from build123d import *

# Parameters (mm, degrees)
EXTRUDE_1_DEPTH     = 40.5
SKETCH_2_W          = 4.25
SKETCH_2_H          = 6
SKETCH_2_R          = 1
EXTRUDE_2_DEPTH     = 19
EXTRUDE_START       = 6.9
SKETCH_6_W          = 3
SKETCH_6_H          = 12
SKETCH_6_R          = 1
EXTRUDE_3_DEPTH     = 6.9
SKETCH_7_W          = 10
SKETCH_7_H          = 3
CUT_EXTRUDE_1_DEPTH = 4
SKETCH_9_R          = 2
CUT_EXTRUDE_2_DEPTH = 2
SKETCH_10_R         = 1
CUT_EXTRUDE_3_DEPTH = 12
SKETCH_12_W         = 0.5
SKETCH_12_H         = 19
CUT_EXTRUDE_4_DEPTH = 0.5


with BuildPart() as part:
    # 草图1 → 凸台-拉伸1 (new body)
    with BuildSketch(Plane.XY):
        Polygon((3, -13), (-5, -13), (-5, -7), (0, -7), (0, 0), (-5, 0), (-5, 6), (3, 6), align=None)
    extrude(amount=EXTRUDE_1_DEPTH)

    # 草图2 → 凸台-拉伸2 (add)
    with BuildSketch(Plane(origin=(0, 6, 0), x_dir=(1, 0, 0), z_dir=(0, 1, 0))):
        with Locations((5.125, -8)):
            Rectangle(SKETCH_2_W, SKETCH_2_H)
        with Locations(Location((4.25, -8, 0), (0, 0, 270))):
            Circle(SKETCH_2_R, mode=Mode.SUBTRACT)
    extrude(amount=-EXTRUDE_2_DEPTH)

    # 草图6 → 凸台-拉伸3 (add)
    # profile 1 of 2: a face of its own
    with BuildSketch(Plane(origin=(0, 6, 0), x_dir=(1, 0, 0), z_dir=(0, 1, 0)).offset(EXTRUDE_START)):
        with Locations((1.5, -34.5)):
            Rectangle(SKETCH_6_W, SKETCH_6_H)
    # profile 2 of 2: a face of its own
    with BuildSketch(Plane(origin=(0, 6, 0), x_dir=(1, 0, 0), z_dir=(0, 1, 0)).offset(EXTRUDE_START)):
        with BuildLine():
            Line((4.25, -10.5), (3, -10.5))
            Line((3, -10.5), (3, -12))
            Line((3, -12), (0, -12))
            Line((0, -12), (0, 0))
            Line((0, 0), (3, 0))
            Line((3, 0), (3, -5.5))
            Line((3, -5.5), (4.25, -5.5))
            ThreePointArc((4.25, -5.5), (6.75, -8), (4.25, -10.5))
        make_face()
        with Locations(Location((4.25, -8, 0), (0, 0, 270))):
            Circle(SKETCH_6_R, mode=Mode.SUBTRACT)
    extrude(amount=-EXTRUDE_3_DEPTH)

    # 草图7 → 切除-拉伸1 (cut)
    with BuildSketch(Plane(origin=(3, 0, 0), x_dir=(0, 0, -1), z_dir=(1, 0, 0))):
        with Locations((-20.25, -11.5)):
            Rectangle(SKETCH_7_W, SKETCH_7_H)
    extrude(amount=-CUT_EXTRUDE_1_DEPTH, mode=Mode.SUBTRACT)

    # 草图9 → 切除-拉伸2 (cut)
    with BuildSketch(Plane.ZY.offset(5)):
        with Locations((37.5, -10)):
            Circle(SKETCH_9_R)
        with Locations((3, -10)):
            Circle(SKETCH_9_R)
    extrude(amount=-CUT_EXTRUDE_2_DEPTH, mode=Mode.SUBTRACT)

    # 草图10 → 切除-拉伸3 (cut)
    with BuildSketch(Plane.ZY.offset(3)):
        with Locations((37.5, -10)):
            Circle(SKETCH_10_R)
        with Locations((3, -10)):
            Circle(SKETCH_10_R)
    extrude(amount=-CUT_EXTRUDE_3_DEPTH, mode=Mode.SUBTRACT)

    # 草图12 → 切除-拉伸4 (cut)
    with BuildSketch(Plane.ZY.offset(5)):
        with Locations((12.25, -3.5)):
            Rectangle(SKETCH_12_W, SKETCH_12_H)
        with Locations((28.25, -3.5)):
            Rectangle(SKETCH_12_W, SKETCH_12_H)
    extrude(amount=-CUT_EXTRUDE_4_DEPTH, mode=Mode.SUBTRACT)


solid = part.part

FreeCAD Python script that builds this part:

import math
import FreeCAD as App
import Part
import Sketcher

V = App.Vector
Q = App.Units.Quantity

doc = App.newDocument("Part")
params = doc.addObject("Spreadsheet::Sheet", "Params")
for row, (alias, value) in enumerate([
    ("sketch1_width", "8 mm"),
    ("sketch1_width2", "5 mm"),
    ("sketch1_height", "19 mm"),
    ("sketch1_height2", "6 mm"),
    ("pad1_length", "40.5 mm"),
    ("sketch2_diameter", "2 mm"),
    ("sketch2_height", "6 mm"),
    ("sketch2_width", "4.25 mm"),
    ("pad2_length", "19 mm"),
    ("sketch3_diameter", "2 mm"),
    ("sketch3_radius", "2.5 mm"),
    ("sketch3_width", "3 mm"),
    ("sketch3_height", "12 mm"),
    ("sketch3_height2", "5.5 mm"),
    ("pad3_length", "6.9 mm"),
    ("sketch4_width", "3 mm"),
    ("sketch4_height", "10 mm"),
    ("pocket1_length", "4 mm"),
    ("sketch5_diameter", "4 mm"),
    ("pocket2_length", "2 mm"),
    ("sketch6_diameter", "2 mm"),
    ("pocket3_length", "12 mm"),
    ("sketch7_width", "19 mm"),
    ("sketch7_height", "0.5 mm"),
    ("pocket4_length", "0.5 mm"),
], start=1):
    params.set(f"A{row}", alias)
    params.set(f"B{row}", "=" + value)
    params.setAlias(f"B{row}", alias)

body = doc.addObject("PartDesign::Body", "Body")

# Sketch on XY plane
sketch1 = body.newObject("Sketcher::SketchObject", "Sketch")
sketch1.AttachmentSupport = (doc.getObject("XY_Plane"), [""])
sketch1.MapMode = "FlatFace"
sketch1.addGeometry(Part.LineSegment(V(-5, -13, 0), V(3, -13, 0)), False)
sketch1.addGeometry(Part.LineSegment(V(3, -13, 0), V(3, 6, 0)), False)
sketch1.addGeometry(Part.LineSegment(V(3, 6, 0), V(-5, 6, 0)), False)
sketch1.addGeometry(Part.LineSegment(V(-5, 6, 0), V(-5, 0, 0)), False)
sketch1.addGeometry(Part.LineSegment(V(-5, 0, 0), V(0, 0, 0)), False)
sketch1.addGeometry(Part.LineSegment(V(0, 0, 0), V(0, -7, 0)), False)
sketch1.addGeometry(Part.LineSegment(V(0, -7, 0), V(-5, -7, 0)), False)
sketch1.addGeometry(Part.LineSegment(V(-5, -7, 0), V(-5, -13, 0)), False)
sketch1.addConstraint(Sketcher.Constraint("Coincident", 0, 2, 1, 1))
sketch1.addConstraint(Sketcher.Constraint("Coincident", 1, 2, 2, 1))
sketch1.addConstraint(Sketcher.Constraint("Coincident", 2, 2, 3, 1))
sketch1.addConstraint(Sketcher.Constraint("Coincident", 3, 2, 4, 1))
sketch1.addConstraint(Sketcher.Constraint("Coincident", 4, 2, 5, 1))
sketch1.addConstraint(Sketcher.Constraint("Coincident", 5, 2, 6, 1))
sketch1.addConstraint(Sketcher.Constraint("Coincident", 6, 2, 7, 1))
sketch1.addConstraint(Sketcher.Constraint("Coincident", 7, 2, 0, 1))
sketch1.addConstraint(Sketcher.Constraint("Horizontal", 0))
sketch1.addConstraint(Sketcher.Constraint("Vertical", 1))
sketch1.addConstraint(Sketcher.Constraint("Horizontal", 2))
sketch1.addConstraint(Sketcher.Constraint("Vertical", 3))
sketch1.addConstraint(Sketcher.Constraint("Horizontal", 4))
sketch1.addConstraint(Sketcher.Constraint("Vertical", 5))
sketch1.addConstraint(Sketcher.Constraint("Horizontal", 6))
sketch1.addConstraint(Sketcher.Constraint("Vertical", 7))
sketch1.addConstraint(Sketcher.Constraint("Coincident", 4, 2, -1, 1))
sketch1.addConstraint(Sketcher.Constraint("Vertical", 3, 2, 6, 2))
sketch1.addConstraint(Sketcher.Constraint("Equal", 3, 7))
sketch1.addConstraint(Sketcher.Constraint("DistanceX", 0, 1, 0, 2, Q("8 mm")))
sketch1.addConstraint(Sketcher.Constraint("DistanceX", 4, 1, 4, 2, Q("5 mm")))
sketch1.addConstraint(Sketcher.Constraint("DistanceY", 1, 1, 1, 2, Q("19 mm")))
sketch1.addConstraint(Sketcher.Constraint("DistanceY", 3, 2, 3, 1, Q("6 mm")))
sketch1.setExpression("Constraints[19]", "Params.sketch1_width")
sketch1.setExpression("Constraints[20]", "Params.sketch1_width2")
sketch1.setExpression("Constraints[21]", "Params.sketch1_height")
sketch1.setExpression("Constraints[22]", "Params.sketch1_height2")
pad1 = body.newObject("PartDesign::Pad", "Pad")
pad1.Profile = sketch1
pad1.setExpression("Length", "Params.pad1_length")

# Sketch on XZ plane
sketch2 = body.newObject("Sketcher::SketchObject", "Sketch001")
sketch2.AttachmentSupport = (doc.getObject("XZ_Plane"), [""])
sketch2.MapMode = "FlatFace"
sketch2.AttachmentOffset = App.Placement(V(0, 0, -6), App.Rotation())
sketch2.addGeometry(Part.LineSegment(V(3, 5, 0), V(3, 11, 0)), False)
sketch2.addGeometry(Part.LineSegment(V(3, 11, 0), V(7.2, 11, 0)), False)
sketch2.addGeometry(Part.LineSegment(V(7.2, 11, 0), V(7.2, 5, 0)), False)
sketch2.addGeometry(Part.LineSegment(V(7.2, 5, 0), V(3, 5, 0)), False)
sketch2.addGeometry(Part.Circle(V(4.2, 8, 0), V(0, 0, 1), 1), False)
sketch2.addConstraint(Sketcher.Constraint("Coincident", 0, 2, 1, 1))
sketch2.addConstraint(Sketcher.Constraint("Coincident", 1, 2, 2, 1))
sketch2.addConstraint(Sketcher.Constraint("Coincident", 2, 2, 3, 1))
sketch2.addConstraint(Sketcher.Constraint("Coincident", 3, 2, 0, 1))
sketch2.addConstraint(Sketcher.Constraint("Vertical", 0))
sketch2.addConstraint(Sketcher.Constraint("Horizontal", 1))
sketch2.addConstraint(Sketcher.Constraint("Vertical", 2))
sketch2.addConstraint(Sketcher.Constraint("Horizontal", 3))
sketch2.addConstraint(Sketcher.Constraint("Diameter", 4, Q("2 mm")))
sketch2.addConstraint(Sketcher.Constraint("DistanceY", 0, 1, 0, 2, Q("6 mm")))
sketch2.addConstraint(Sketcher.Constraint("DistanceY", -1, 1, 4, 3, Q("8 mm")))
sketch2.addConstraint(Sketcher.Constraint("DistanceX", -1, 1, 0, 2, Q("3 mm")))
sketch2.addConstraint(Sketcher.Constraint("DistanceY", -1, 1, 0, 2, Q("11 mm")))
sketch2.addConstraint(Sketcher.Constraint("DistanceX", 4, 3, 1, 2, Q("3 mm")))
sketch2.addConstraint(Sketcher.Constraint("DistanceX", 1, 1, 1, 2, Q("4.25 mm")))
sketch2.setExpression("Constraints[8]", "Params.sketch2_diameter")
sketch2.setExpression("Constraints[9]", "Params.sketch2_height")
sketch2.setExpression("Constraints[14]", "Params.sketch2_width")
pad2 = body.newObject("PartDesign::Pad", "Pad001")
pad2.Profile = sketch2
pad2.setExpression("Length", "Params.pad2_length")

# Sketch on XZ plane
sketch3 = body.newObject("Sketcher::SketchObject", "Sketch002")
sketch3.AttachmentSupport = (doc.getObject("XZ_Plane"), [""])
sketch3.MapMode = "FlatFace"
sketch3.AttachmentOffset = App.Placement(V(0, 0, -12.9), App.Rotation())
sketch3.addGeometry(Part.LineSegment(V(0, 28.5, 0), V(0, 40.5, 0)), False)
sketch3.addGeometry(Part.LineSegment(V(0, 40.5, 0), V(3, 40.5, 0)), False)
sketch3.addGeometry(Part.LineSegment(V(3, 40.5, 0), V(3, 28.5, 0)), False)
sketch3.addGeometry(Part.LineSegment(V(3, 28.5, 0), V(0, 28.5, 0)), False)
sketch3.addGeometry(Part.LineSegment(V(3, 10.5, 0), V(4.2, 10.5, 0)), False)
sketch3.addGeometry(Part.ArcOfCircle(Part.Circle(V(4.2, 8, 0), V(0, 0, 1), 2.5), math.radians(-90), math.radians(90)), False)
sketch3.addGeometry(Part.LineSegment(V(4.2, 5.5, 0), V(3, 5.5, 0)), False)
sketch3.addGeometry(Part.LineSegment(V(3, 5.5, 0), V(3, 0, 0)), False)
sketch3.addGeometry(Part.LineSegment(V(3, 0, 0), V(0, 0, 0)), False)
sketch3.addGeometry(Part.LineSegment(V(0, 0, 0), V(0, 12, 0)), False)
sketch3.addGeometry(Part.LineSegment(V(0, 12, 0), V(3, 12, 0)), False)
sketch3.addGeometry(Part.LineSegment(V(3, 12, 0), V(3, 10.5, 0)), False)
sketch3.addGeometry(Part.Circle(V(4.2, 8, 0), V(0, 0, 1), 1), False)
sketch3.addConstraint(Sketcher.Constraint("Coincident", 0, 2, 1, 1))
sketch3.addConstraint(Sketcher.Constraint("Coincident", 1, 2, 2, 1))
sketch3.addConstraint(Sketcher.Constraint("Coincident", 2, 2, 3, 1))
sketch3.addConstraint(Sketcher.Constraint("Coincident", 3, 2, 0, 1))
sketch3.addConstraint(Sketcher.Constraint("Tangent", 4, 2, 5, 2))
sketch3.addConstraint(Sketcher.Constraint("Tangent", 5, 1, 6, 1))
sketch3.addConstraint(Sketcher.Constraint("Coincident", 6, 2, 7, 1))
sketch3.addConstraint(Sketcher.Constraint("Coincident", 7, 2, 8, 1))
sketch3.addConstraint(Sketcher.Constraint("Coincident", 8, 2, 9, 1))
sketch3.addConstraint(Sketcher.Constraint("Coincident", 9, 2, 10, 1))
sketch3.addConstraint(Sketcher.Constraint("Coincident", 10, 2, 11, 1))
sketch3.addConstraint(Sketcher.Constraint("Coincident", 11, 2, 4, 1))
sketch3.addConstraint(Sketcher.Constraint("Vertical", 0))
sketch3.addConstraint(Sketcher.Constraint("Horizontal", 1))
sketch3.addConstraint(Sketcher.Constraint("Vertical", 2))
sketch3.addConstraint(Sketcher.Constraint("Horizontal", 3))
sketch3.addConstraint(Sketcher.Constraint("Horizontal", 4))
sketch3.addConstraint(Sketcher.Constraint("Horizontal", 6))
sketch3.addConstraint(Sketcher.Constraint("Vertical", 7))
sketch3.addConstraint(Sketcher.Constraint("Horizontal", 8))
sketch3.addConstraint(Sketcher.Constraint("Vertical", 9))
sketch3.addConstraint(Sketcher.Constraint("Horizontal", 10))
sketch3.addConstraint(Sketcher.Constraint("Vertical", 11))
sketch3.addConstraint(Sketcher.Constraint("Coincident", 8, 2, -1, 1))
sketch3.addConstraint(Sketcher.Constraint("Coincident", 12, 3, 5, 3))
sketch3.addConstraint(Sketcher.Constraint("PointOnObject", 0, 2, -2))
sketch3.addConstraint(Sketcher.Constraint("Vertical", 2, 2, 6, 2))
sketch3.addConstraint(Sketcher.Constraint("Vertical", 7, 2, 10, 2))
sketch3.addConstraint(Sketcher.Constraint("Equal", 2, 9))
sketch3.addConstraint(Sketcher.Constraint("Diameter", 12, Q("2 mm")))
sketch3.addConstraint(Sketcher.Constraint("Radius", 5, Q("2.5 mm")))
sketch3.addConstraint(Sketcher.Constraint("DistanceX", 1, 1, 1, 2, Q("3 mm")))
sketch3.addConstraint(Sketcher.Constraint("DistanceY", 0, 1, 0, 2, Q("12 mm")))
sketch3.addConstraint(Sketcher.Constraint("DistanceY", 7, 2, 7, 1, Q("5.5 mm")))
sketch3.addConstraint(Sketcher.Constraint("DistanceY", 4, 2, 2, 2, Q("18 mm")))
sketch3.addConstraint(Sketcher.Constraint("DistanceX", 4, 1, 4, 2, Q("1.25 mm")))
sketch3.setExpression("Constraints[29]", "Params.sketch3_diameter")
sketch3.setExpression("Constraints[30]", "Params.sketch3_radius")
sketch3.setExpression("Constraints[31]", "Params.sketch3_width")
sketch3.setExpression("Constraints[32]", "Params.sketch3_height")
sketch3.setExpression("Constraints[33]", "Params.sketch3_height2")
pad3 = body.newObject("PartDesign::Pad", "Pad002")
pad3.Profile = sketch3
pad3.setExpression("Length", "Params.pad3_length")

# Sketch on YZ plane
sketch4 = body.newObject("Sketcher::SketchObject", "Sketch003")
sketch4.AttachmentSupport = (doc.getObject("YZ_Plane"), [""])
sketch4.MapMode = "FlatFace"
sketch4.AttachmentOffset = App.Placement(V(0, 0, 3), App.Rotation())
sketch4.addGeometry(Part.LineSegment(V(-10, 25.2, 0), V(-13, 25.2, 0)), False)
sketch4.addGeometry(Part.LineSegment(V(-13, 25.2, 0), V(-13, 15.2, 0)), False)
sketch4.addGeometry(Part.LineSegment(V(-13, 15.2, 0), V(-10, 15.2, 0)), False)
sketch4.addGeometry(Part.LineSegment(V(-10, 15.2, 0), V(-10, 25.2, 0)), False)
sketch4.addConstraint(Sketcher.Constraint("Coincident", 0, 2, 1, 1))
sketch4.addConstraint(Sketcher.Constraint("Coincident", 1, 2, 2, 1))
sketch4.addConstraint(Sketcher.Constraint("Coincident", 2, 2, 3, 1))
sketch4.addConstraint(Sketcher.Constraint("Coincident", 3, 2, 0, 1))
sketch4.addConstraint(Sketcher.Constraint("Horizontal", 0))
sketch4.addConstraint(Sketcher.Constraint("Vertical", 1))
sketch4.addConstraint(Sketcher.Constraint("Horizontal", 2))
sketch4.addConstraint(Sketcher.Constraint("Vertical", 3))
sketch4.addConstraint(Sketcher.Constraint("DistanceX", 0, 2, 0, 1, Q("3 mm")))
sketch4.addConstraint(Sketcher.Constraint("DistanceY", 1, 2, 1, 1, Q("10 mm")))
sketch4.addConstraint(Sketcher.Constraint("DistanceX", 0, 2, -1, 1, Q("13 mm")))
sketch4.addConstraint(Sketcher.Constraint("DistanceY", -1, 1, 0, 2, Q("25.25 mm")))
sketch4.setExpression("Constraints[8]", "Params.sketch4_width")
sketch4.setExpression("Constraints[9]", "Params.sketch4_height")
pocket1 = body.newObject("PartDesign::Pocket", "Pocket")
pocket1.Profile = sketch4
pocket1.setExpression("Length", "Params.pocket1_length")

# Sketch on YZ plane
sketch5 = body.newObject("Sketcher::SketchObject", "Sketch004")
sketch5.AttachmentSupport = (doc.getObject("YZ_Plane"), [""])
sketch5.MapMode = "FlatFace"
sketch5.AttachmentOffset = App.Placement(V(0, 0, -5), App.Rotation())
sketch5.addGeometry(Part.Circle(V(-10, 37.5, 0), V(0, 0, 1), 2), False)
sketch5.addGeometry(Part.Circle(V(-10, 3, 0), V(0, 0, 1), 2), False)
sketch5.addConstraint(Sketcher.Constraint("Equal", 0, 1))
sketch5.addConstraint(Sketcher.Constraint("Vertical", 0, 3, 1, 3))
sketch5.addConstraint(Sketcher.Constraint("Diameter", 0, Q("4 mm")))
sketch5.addConstraint(Sketcher.Constraint("DistanceX", 0, 3, -1, 1, Q("10 mm")))
sketch5.addConstraint(Sketcher.Constraint("DistanceY", -1, 1, 1, 3, Q("3 mm")))
sketch5.addConstraint(Sketcher.Constraint("DistanceY", -1, 1, 0, 3, Q("37.5 mm")))
sketch5.setExpression("Constraints[2]", "Params.sketch5_diameter")
pocket2 = body.newObject("PartDesign::Pocket", "Pocket001")
pocket2.Profile = sketch5
pocket2.setExpression("Length", "Params.pocket2_length")
pocket2.Reversed = True

# Sketch on YZ plane
sketch6 = body.newObject("Sketcher::SketchObject", "Sketch005")
sketch6.AttachmentSupport = (doc.getObject("YZ_Plane"), [""])
sketch6.MapMode = "FlatFace"
sketch6.AttachmentOffset = App.Placement(V(0, 0, -3), App.Rotation())
sketch6.addGeometry(Part.Circle(V(-10, 37.5, 0), V(0, 0, 1), 1), False)
sketch6.addGeometry(Part.Circle(V(-10, 3, 0), V(0, 0, 1), 1), False)
sketch6.addConstraint(Sketcher.Constraint("Equal", 0, 1))
sketch6.addConstraint(Sketcher.Constraint("Vertical", 0, 3, 1, 3))
sketch6.addConstraint(Sketcher.Constraint("Diameter", 0, Q("2 mm")))
sketch6.addConstraint(Sketcher.Constraint("DistanceX", 0, 3, -1, 1, Q("10 mm")))
sketch6.addConstraint(Sketcher.Constraint("DistanceY", -1, 1, 1, 3, Q("3 mm")))
sketch6.addConstraint(Sketcher.Constraint("DistanceY", -1, 1, 0, 3, Q("37.5 mm")))
sketch6.setExpression("Constraints[2]", "Params.sketch6_diameter")
pocket3 = body.newObject("PartDesign::Pocket", "Pocket002")
pocket3.Profile = sketch6
pocket3.setExpression("Length", "Params.pocket3_length")
pocket3.Reversed = True

# Sketch on YZ plane
sketch7 = body.newObject("Sketcher::SketchObject", "Sketch006")
sketch7.AttachmentSupport = (doc.getObject("YZ_Plane"), [""])
sketch7.MapMode = "FlatFace"
sketch7.AttachmentOffset = App.Placement(V(0, 0, -5), App.Rotation())
sketch7.addGeometry(Part.LineSegment(V(6, 12, 0), V(-13, 12, 0)), False)
sketch7.addGeometry(Part.LineSegment(V(-13, 12, 0), V(-13, 12.5, 0)), False)
sketch7.addGeometry(Part.LineSegment(V(-13, 12.5, 0), V(6, 12.5, 0)), False)
sketch7.addGeometry(Part.LineSegment(V(6, 12.5, 0), V(6, 12, 0)), False)
sketch7.addGeometry(Part.LineSegment(V(6, 28, 0), V(-13, 28, 0)), False)
sketch7.addGeometry(Part.LineSegment(V(-13, 28, 0), V(-13, 28.5, 0)), False)
sketch7.addGeometry(Part.LineSegment(V(-13, 28.5, 0), V(6, 28.5, 0)), False)
sketch7.addGeometry(Part.LineSegment(V(6, 28.5, 0), V(6, 28, 0)), False)
sketch7.addConstraint(Sketcher.Constraint("Coincident", 0, 2, 1, 1))
sketch7.addConstraint(Sketcher.Constraint("Coincident", 1, 2, 2, 1))
sketch7.addConstraint(Sketcher.Constraint("Coincident", 2, 2, 3, 1))
sketch7.addConstraint(Sketcher.Constraint("Coincident", 3, 2, 0, 1))
sketch7.addConstraint(Sketcher.Constraint("Coincident", 4, 2, 5, 1))
sketch7.addConstraint(Sketcher.Constraint("Coincident", 5, 2, 6, 1))
sketch7.addConstraint(Sketcher.Constraint("Coincident", 6, 2, 7, 1))
sketch7.addConstraint(Sketcher.Constraint("Coincident", 7, 2, 4, 1))
sketch7.addConstraint(Sketcher.Constraint("Horizontal", 0))
sketch7.addConstraint(Sketcher.Constraint("Vertical", 1))
sketch7.addConstraint(Sketcher.Constraint("Horizontal", 2))
sketch7.addConstraint(Sketcher.Constraint("Vertical", 3))
sketch7.addConstraint(Sketcher.Constraint("Horizontal", 4))
sketch7.addConstraint(Sketcher.Constraint("Vertical", 5))
sketch7.addConstraint(Sketcher.Constraint("Horizontal", 6))
sketch7.addConstraint(Sketcher.Constraint("Vertical", 7))
sketch7.addConstraint(Sketcher.Constraint("Vertical", 1, 2, 4, 2))
sketch7.addConstraint(Sketcher.Constraint("Vertical", 3, 2, 6, 2))
sketch7.addConstraint(Sketcher.Constraint("Equal", 3, 5))
sketch7.addConstraint(Sketcher.Constraint("DistanceX", 0, 2, 0, 1, Q("19 mm")))
sketch7.addConstraint(Sketcher.Constraint("DistanceY", 1, 1, 1, 2, Q("0.5 mm")))
sketch7.addConstraint(Sketcher.Constraint("DistanceX", 0, 2, -1, 1, Q("13 mm")))
sketch7.addConstraint(Sketcher.Constraint("DistanceY", -1, 1, 0, 2, Q("12 mm")))
sketch7.addConstraint(Sketcher.Constraint("DistanceY", -1, 1, 4, 2, Q("28 mm")))
sketch7.setExpression("Constraints[19]", "Params.sketch7_width")
sketch7.setExpression("Constraints[20]", "Params.sketch7_height")
pocket4 = body.newObject("PartDesign::Pocket", "Pocket003")
pocket4.Profile = sketch7
pocket4.setExpression("Length", "Params.pocket4_length")
pocket4.Reversed = True

doc.recompute()
